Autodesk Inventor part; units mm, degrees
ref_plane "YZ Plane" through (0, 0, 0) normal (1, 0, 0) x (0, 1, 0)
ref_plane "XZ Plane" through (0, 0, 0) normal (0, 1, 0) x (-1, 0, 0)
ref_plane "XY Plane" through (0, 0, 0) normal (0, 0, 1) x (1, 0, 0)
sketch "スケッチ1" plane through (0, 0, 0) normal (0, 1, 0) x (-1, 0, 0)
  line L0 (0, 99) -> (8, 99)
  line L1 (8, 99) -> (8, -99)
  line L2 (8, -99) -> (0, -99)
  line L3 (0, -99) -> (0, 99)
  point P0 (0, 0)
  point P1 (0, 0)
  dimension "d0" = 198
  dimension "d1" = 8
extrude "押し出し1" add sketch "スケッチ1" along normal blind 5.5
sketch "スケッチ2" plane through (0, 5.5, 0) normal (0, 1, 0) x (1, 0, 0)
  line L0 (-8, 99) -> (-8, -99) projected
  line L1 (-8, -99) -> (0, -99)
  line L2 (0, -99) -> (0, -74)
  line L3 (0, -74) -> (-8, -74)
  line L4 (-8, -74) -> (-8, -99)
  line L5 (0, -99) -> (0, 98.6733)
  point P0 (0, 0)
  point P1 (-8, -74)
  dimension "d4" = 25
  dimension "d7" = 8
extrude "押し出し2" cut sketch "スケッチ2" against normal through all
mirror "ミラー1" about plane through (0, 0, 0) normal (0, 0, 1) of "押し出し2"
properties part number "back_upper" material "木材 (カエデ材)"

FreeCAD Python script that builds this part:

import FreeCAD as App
import Part
import Sketcher
from FreeCAD import Vector
Q = App.Units.Quantity


def add_polygon(sketch, points):
    """Adds a closed chain of lines whose ends are joined by coincident constraints."""
    first, n = sketch.GeometryCount, len(points)
    for a, b in zip(points, points[1:] + points[:1]):
        sketch.addGeometry(Part.LineSegment(App.Vector(*a, 0), App.Vector(*b, 0)), False)
    for i in range(n):
        sketch.addConstraint(Sketcher.Constraint("Coincident", first + i, 2, first + (i + 1) % n, 1))

doc = App.newDocument("Part")
body = doc.addObject("PartDesign::Body", "Body")

# Sketch on XZ plane
sketch1 = doc.addObject("Sketcher::SketchObject", "Sketch")
body.addObject(sketch1)
sketch1.AttachmentSupport = (doc.XZ_Plane, [""])
sketch1.MapMode = "FlatFace"
add_polygon(sketch1, [(-8, 99), (0, 99), (0, -99), (-8, -99)])  # lines 0-3
sketch1.addConstraint([
    Sketcher.Constraint("Horizontal", 0),
    Sketcher.Constraint("Vertical", 1),
    Sketcher.Constraint("Horizontal", 2),
    Sketcher.Constraint("Vertical", 3),
    Sketcher.Constraint("Symmetric", 0, 2, 1, 2, -1, 1),
    Sketcher.Constraint("DistanceX", 0, 1, 0, 2, Q("8 mm")),
    Sketcher.Constraint("DistanceY", 1, 2, 1, 1, Q("198 mm")),
])
pad1 = doc.addObject("PartDesign::Pad", "Pad")
body.addObject(pad1)
pad1.Profile = sketch1
pad1.Length = 5.5
pad1.Reversed = True

# Sketch on XZ plane
sketch2 = doc.addObject("Sketcher::SketchObject", "Sketch001")
body.addObject(sketch2)
sketch2.AttachmentSupport = (doc.XZ_Plane, [""])
sketch2.MapMode = "FlatFace"
sketch2.AttachmentOffset = App.Placement(Vector(0, 0, -5.5), App.Rotation())
add_polygon(sketch2, [(0, 74), (-8, 74), (-8, 99), (0, 99)])  # lines 0-3
sketch2.addConstraint([
    Sketcher.Constraint("Horizontal", 0),
    Sketcher.Constraint("Vertical", 1),
    Sketcher.Constraint("Horizontal", 2),
    Sketcher.Constraint("Vertical", 3),
    Sketcher.Constraint("PointOnObject", 2, 2, -2),
    Sketcher.Constraint("DistanceX", 0, 2, 0, 1, Q("8 mm")),
    Sketcher.Constraint("DistanceY", 1, 1, 1, 2, Q("25 mm")),
    Sketcher.Constraint("DistanceY", -1, 1, 0, 2, Q("74 mm")),
])
pocket1 = doc.addObject("PartDesign::Pocket", "Pocket")
body.addObject(pocket1)
pocket1.Profile = sketch2
pocket1.Type = "ThroughAll"
pocket1.Reversed = True
doc.recompute()

mirrored = doc.addObject("PartDesign::Mirrored", "Mirrored")
body.addObject(mirrored)
mirrored.Originals = [pocket1]
mirrored.MirrorPlane = (doc.XY_Plane, [""])
body.Tip = mirrored

doc.recompute()
